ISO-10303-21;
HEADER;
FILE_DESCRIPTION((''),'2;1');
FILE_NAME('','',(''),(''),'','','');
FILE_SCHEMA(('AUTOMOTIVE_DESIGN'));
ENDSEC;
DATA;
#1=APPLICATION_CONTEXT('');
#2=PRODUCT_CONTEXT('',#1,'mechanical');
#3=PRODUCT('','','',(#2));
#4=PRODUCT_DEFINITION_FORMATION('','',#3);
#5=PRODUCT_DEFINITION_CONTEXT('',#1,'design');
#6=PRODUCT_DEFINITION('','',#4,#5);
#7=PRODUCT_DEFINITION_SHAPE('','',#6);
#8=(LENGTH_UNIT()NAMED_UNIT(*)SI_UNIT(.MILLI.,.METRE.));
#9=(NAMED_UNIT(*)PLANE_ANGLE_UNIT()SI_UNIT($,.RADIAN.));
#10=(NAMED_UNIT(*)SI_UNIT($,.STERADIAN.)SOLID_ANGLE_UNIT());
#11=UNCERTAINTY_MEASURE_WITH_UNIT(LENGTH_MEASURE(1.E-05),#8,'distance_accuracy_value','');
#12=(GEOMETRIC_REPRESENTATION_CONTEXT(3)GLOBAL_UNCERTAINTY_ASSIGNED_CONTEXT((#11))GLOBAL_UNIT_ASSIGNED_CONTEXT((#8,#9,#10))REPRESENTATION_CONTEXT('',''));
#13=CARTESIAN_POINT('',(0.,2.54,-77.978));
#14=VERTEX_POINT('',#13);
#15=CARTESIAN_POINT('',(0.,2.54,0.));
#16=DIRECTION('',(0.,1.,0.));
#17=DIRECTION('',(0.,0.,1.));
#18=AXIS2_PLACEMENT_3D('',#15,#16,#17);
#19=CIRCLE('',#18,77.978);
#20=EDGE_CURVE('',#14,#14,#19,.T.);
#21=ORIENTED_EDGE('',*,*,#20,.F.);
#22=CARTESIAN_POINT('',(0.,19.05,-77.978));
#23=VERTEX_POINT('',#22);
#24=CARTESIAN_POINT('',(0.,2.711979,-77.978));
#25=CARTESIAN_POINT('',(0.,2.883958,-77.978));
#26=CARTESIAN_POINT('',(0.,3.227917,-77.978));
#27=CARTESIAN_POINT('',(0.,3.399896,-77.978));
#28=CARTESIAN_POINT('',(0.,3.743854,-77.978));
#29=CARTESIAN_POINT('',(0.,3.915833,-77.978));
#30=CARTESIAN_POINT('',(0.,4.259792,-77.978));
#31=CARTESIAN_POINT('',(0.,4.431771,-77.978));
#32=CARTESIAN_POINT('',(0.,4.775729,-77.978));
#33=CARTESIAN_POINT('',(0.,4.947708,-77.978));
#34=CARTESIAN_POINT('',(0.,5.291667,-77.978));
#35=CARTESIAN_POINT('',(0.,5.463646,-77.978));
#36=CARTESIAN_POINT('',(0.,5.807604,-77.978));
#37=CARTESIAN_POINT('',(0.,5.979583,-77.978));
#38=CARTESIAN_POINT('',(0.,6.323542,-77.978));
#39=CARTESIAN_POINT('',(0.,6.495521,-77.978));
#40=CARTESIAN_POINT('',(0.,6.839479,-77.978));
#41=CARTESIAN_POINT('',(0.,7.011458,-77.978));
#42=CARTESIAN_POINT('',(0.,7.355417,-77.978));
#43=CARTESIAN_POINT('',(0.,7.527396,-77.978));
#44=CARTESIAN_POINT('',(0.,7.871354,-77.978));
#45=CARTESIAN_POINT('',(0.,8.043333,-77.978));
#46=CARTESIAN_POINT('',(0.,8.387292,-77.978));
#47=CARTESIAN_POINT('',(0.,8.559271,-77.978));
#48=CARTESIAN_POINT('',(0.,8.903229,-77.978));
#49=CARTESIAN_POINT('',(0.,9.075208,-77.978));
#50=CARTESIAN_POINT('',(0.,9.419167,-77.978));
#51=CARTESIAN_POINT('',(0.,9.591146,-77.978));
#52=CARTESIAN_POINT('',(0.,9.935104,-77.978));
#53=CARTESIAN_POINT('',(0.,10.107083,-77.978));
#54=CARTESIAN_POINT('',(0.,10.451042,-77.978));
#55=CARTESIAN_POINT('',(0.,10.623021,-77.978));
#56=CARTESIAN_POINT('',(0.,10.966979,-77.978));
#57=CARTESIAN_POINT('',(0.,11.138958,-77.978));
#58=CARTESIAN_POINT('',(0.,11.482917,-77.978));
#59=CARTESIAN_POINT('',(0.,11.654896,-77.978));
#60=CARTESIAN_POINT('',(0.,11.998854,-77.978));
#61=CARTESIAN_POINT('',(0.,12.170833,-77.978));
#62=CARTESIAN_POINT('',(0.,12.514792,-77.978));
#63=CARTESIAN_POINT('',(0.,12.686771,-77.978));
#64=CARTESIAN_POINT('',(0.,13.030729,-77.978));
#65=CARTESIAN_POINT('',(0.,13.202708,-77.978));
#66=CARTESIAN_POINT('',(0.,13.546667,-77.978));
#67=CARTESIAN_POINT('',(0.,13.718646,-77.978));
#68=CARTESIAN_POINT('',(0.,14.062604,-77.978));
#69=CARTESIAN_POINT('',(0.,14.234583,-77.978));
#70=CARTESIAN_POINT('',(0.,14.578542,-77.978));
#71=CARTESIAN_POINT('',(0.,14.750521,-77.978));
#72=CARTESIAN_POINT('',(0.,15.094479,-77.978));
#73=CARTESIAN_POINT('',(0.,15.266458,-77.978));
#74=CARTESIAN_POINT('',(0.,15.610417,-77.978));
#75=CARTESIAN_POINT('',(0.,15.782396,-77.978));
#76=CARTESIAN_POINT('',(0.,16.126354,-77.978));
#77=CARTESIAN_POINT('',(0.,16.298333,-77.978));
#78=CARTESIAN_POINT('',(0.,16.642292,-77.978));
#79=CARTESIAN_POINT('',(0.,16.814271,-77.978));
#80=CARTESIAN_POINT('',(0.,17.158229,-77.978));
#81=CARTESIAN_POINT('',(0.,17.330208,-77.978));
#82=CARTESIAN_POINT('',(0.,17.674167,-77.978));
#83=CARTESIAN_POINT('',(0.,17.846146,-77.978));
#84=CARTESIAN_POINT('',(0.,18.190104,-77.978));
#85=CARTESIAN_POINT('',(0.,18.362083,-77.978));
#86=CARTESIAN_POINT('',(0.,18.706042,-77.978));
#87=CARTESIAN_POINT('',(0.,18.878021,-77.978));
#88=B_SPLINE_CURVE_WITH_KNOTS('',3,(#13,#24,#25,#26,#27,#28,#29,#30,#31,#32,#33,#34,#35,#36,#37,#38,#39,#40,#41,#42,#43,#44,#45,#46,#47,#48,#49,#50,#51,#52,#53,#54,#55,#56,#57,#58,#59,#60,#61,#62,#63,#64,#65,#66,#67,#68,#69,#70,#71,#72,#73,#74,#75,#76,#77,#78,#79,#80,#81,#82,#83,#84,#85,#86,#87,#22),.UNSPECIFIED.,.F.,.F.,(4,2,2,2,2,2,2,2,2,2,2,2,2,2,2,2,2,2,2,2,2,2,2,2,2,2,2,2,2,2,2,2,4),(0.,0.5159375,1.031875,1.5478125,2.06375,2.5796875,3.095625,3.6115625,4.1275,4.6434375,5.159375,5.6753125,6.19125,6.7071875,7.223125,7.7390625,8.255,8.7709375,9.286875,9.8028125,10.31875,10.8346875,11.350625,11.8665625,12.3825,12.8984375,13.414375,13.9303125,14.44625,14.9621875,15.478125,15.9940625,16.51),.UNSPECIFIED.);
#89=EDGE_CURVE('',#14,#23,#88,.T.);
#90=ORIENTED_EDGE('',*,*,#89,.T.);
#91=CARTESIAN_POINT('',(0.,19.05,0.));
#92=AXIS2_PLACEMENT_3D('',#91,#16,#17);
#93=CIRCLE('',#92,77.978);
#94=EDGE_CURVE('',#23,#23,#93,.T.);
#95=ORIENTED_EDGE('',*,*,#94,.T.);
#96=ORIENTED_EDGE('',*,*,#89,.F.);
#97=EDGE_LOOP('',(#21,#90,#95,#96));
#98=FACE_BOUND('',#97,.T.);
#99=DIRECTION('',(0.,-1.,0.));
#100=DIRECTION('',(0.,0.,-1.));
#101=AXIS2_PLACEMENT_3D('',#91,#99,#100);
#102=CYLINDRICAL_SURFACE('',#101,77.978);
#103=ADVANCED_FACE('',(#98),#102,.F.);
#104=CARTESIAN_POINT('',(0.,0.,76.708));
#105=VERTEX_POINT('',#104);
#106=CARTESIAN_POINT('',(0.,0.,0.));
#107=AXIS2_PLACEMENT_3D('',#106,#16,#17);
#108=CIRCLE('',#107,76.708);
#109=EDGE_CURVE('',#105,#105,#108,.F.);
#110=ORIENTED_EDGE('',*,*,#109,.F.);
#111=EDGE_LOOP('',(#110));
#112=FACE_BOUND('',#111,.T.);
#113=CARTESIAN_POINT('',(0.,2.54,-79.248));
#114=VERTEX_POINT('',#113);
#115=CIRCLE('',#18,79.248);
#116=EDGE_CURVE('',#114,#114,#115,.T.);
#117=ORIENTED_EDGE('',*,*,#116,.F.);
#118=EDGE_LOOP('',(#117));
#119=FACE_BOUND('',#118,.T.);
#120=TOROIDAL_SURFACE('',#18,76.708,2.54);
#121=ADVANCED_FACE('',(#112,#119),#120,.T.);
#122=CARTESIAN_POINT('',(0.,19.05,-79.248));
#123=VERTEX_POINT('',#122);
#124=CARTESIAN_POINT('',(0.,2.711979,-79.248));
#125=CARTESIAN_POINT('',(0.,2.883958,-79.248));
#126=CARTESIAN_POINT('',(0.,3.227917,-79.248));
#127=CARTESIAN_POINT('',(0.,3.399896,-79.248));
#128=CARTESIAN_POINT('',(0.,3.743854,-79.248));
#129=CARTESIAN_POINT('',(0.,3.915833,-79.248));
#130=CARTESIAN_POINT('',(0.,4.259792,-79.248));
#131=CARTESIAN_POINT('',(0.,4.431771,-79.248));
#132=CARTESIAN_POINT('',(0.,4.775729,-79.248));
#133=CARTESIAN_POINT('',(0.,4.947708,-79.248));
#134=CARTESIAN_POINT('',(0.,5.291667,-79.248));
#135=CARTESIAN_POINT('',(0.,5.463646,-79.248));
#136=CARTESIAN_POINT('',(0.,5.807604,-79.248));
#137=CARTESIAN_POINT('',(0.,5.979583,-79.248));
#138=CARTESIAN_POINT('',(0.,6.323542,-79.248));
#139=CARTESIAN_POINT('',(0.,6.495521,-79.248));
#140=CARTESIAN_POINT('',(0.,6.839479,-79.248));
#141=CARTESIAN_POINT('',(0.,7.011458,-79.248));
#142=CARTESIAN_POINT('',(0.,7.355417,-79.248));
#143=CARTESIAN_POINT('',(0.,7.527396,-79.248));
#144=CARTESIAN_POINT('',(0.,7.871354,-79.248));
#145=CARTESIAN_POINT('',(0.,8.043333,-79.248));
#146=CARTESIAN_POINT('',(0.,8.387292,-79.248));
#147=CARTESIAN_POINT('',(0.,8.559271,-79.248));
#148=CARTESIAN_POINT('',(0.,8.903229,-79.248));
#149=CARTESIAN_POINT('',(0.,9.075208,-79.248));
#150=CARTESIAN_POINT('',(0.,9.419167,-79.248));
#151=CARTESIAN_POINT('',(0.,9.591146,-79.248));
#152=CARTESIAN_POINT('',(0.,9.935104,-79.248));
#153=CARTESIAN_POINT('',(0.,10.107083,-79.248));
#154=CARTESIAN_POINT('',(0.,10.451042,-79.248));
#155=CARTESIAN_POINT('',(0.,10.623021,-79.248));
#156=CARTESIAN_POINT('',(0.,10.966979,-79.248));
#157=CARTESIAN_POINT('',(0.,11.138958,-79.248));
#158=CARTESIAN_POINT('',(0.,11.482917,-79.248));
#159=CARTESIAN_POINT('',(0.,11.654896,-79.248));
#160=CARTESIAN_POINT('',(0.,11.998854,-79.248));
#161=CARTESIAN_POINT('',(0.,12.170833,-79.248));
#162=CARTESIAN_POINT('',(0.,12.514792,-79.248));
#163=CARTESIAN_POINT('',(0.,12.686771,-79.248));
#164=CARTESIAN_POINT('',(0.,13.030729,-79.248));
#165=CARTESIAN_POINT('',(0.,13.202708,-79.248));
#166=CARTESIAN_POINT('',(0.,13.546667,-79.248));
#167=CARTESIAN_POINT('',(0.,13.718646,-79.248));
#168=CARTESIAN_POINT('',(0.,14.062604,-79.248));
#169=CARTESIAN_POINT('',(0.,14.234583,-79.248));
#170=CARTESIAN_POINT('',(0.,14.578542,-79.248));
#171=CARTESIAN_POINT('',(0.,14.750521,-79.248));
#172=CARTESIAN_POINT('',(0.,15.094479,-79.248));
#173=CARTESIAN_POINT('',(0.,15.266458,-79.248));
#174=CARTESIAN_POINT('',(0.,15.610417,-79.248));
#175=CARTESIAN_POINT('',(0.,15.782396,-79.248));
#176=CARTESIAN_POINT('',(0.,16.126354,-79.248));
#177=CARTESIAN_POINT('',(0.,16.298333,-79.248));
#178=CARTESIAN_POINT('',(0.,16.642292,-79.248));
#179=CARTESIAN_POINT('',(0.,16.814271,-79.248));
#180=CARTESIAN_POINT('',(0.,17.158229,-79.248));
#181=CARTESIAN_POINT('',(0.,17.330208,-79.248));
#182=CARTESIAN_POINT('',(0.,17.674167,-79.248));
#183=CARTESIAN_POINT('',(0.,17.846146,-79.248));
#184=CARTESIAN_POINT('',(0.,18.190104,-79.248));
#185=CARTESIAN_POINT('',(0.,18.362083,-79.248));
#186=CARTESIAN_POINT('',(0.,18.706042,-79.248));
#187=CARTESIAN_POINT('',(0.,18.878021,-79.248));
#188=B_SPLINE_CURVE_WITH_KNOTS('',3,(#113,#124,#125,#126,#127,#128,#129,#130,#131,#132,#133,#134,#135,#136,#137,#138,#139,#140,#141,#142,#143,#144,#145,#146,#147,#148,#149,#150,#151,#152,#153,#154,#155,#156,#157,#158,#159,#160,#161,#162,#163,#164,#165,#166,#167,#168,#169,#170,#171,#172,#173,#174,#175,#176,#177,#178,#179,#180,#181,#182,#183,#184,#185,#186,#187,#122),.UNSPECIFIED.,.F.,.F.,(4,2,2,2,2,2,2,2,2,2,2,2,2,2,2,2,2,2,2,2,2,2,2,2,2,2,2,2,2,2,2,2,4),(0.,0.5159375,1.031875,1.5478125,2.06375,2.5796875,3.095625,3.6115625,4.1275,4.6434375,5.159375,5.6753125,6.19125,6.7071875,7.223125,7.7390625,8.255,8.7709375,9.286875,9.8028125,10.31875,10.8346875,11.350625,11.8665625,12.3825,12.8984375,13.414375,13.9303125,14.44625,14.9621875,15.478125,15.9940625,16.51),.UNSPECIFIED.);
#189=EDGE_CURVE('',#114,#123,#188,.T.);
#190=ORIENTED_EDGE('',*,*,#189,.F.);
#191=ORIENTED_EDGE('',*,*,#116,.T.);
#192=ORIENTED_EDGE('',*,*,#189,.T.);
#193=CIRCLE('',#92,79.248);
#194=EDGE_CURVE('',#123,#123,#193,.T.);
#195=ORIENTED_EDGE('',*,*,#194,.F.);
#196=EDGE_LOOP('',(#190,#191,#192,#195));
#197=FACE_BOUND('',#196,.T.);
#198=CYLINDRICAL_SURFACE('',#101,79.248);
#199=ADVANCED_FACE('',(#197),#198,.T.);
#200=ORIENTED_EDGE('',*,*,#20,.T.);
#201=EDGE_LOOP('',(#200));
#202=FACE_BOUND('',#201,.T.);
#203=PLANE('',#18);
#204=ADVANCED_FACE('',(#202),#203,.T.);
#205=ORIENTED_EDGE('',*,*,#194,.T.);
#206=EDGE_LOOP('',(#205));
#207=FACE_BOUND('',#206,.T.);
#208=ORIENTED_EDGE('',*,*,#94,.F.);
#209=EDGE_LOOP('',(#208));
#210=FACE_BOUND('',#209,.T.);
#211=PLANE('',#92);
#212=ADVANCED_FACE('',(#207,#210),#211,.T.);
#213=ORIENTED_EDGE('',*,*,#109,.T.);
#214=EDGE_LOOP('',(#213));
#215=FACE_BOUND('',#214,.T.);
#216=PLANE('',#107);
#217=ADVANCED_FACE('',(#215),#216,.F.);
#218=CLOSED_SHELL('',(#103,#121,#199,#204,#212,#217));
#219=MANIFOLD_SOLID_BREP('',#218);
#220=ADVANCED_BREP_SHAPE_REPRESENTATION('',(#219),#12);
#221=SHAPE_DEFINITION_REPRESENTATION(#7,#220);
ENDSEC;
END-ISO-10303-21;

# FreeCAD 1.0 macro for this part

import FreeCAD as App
import Part
import Sketcher

V = App.Vector
Q = App.Units.Quantity


def edges_at(feature, points):
    """Names of the edges that pass closest to the given points."""
    edges = feature.Shape.Edges
    near = lambda p: min(range(len(edges)), key=lambda i: edges[i].distToShape(Part.Vertex(*p))[0])
    return sorted({f"Edge{near(p) + 1}" for p in points})

doc = App.newDocument("Part")
body = doc.addObject("PartDesign::Body", "Body")

# Sketch on XZ plane
sketch1 = body.newObject("Sketcher::SketchObject", "Sketch")
sketch1.AttachmentSupport = (doc.getObject("XZ_Plane"), [""])
sketch1.MapMode = "FlatFace"
sketch1.addGeometry([
    Part.Circle(V(0, 0, 0), V(0, 0, 1), 79.248),
    Part.Circle(V(0, 0, 0), V(0, 0, 1), 77.978),
], False)
sketch1.addConstraint([
    Sketcher.Constraint("Coincident", 0, 3, -1, 1),
    Sketcher.Constraint("Coincident", 1, 3, -1, 1),
    Sketcher.Constraint("Diameter", 0, Q("6.24 in")),
    Sketcher.Constraint("Diameter", 1, Q("6.14 in")),
])
pad1 = body.newObject("PartDesign::Pad", "Pad")
pad1.Profile = sketch1
pad1.Length = Q("0.75 in")
pad1.Reversed = True

# Sketch on XZ plane
sketch2 = body.newObject("Sketcher::SketchObject", "Sketch001")
sketch2.AttachmentSupport = (doc.getObject("XZ_Plane"), [""])
sketch2.MapMode = "FlatFace"
sketch2.addGeometry(Part.Circle(V(0, 0, 0), V(0, 0, 1), 77.978), False)
sketch2.addConstraint([
    Sketcher.Constraint("Coincident", 0, 3, -1, 1),
    Sketcher.Constraint("Diameter", 0, Q("6.14 in")),
])
pad2 = body.newObject("PartDesign::Pad", "Pad001")
pad2.Profile = sketch2
pad2.Length = Q("0.1 in")
pad2.Reversed = True
doc.recompute()

fillet = body.newObject("PartDesign::Fillet", "Fillet")
fillet.Base = (pad2, edges_at(pad2, [(0, 0, 79.248)]))
fillet.Radius = Q("0.1 in")

doc.recompute()
